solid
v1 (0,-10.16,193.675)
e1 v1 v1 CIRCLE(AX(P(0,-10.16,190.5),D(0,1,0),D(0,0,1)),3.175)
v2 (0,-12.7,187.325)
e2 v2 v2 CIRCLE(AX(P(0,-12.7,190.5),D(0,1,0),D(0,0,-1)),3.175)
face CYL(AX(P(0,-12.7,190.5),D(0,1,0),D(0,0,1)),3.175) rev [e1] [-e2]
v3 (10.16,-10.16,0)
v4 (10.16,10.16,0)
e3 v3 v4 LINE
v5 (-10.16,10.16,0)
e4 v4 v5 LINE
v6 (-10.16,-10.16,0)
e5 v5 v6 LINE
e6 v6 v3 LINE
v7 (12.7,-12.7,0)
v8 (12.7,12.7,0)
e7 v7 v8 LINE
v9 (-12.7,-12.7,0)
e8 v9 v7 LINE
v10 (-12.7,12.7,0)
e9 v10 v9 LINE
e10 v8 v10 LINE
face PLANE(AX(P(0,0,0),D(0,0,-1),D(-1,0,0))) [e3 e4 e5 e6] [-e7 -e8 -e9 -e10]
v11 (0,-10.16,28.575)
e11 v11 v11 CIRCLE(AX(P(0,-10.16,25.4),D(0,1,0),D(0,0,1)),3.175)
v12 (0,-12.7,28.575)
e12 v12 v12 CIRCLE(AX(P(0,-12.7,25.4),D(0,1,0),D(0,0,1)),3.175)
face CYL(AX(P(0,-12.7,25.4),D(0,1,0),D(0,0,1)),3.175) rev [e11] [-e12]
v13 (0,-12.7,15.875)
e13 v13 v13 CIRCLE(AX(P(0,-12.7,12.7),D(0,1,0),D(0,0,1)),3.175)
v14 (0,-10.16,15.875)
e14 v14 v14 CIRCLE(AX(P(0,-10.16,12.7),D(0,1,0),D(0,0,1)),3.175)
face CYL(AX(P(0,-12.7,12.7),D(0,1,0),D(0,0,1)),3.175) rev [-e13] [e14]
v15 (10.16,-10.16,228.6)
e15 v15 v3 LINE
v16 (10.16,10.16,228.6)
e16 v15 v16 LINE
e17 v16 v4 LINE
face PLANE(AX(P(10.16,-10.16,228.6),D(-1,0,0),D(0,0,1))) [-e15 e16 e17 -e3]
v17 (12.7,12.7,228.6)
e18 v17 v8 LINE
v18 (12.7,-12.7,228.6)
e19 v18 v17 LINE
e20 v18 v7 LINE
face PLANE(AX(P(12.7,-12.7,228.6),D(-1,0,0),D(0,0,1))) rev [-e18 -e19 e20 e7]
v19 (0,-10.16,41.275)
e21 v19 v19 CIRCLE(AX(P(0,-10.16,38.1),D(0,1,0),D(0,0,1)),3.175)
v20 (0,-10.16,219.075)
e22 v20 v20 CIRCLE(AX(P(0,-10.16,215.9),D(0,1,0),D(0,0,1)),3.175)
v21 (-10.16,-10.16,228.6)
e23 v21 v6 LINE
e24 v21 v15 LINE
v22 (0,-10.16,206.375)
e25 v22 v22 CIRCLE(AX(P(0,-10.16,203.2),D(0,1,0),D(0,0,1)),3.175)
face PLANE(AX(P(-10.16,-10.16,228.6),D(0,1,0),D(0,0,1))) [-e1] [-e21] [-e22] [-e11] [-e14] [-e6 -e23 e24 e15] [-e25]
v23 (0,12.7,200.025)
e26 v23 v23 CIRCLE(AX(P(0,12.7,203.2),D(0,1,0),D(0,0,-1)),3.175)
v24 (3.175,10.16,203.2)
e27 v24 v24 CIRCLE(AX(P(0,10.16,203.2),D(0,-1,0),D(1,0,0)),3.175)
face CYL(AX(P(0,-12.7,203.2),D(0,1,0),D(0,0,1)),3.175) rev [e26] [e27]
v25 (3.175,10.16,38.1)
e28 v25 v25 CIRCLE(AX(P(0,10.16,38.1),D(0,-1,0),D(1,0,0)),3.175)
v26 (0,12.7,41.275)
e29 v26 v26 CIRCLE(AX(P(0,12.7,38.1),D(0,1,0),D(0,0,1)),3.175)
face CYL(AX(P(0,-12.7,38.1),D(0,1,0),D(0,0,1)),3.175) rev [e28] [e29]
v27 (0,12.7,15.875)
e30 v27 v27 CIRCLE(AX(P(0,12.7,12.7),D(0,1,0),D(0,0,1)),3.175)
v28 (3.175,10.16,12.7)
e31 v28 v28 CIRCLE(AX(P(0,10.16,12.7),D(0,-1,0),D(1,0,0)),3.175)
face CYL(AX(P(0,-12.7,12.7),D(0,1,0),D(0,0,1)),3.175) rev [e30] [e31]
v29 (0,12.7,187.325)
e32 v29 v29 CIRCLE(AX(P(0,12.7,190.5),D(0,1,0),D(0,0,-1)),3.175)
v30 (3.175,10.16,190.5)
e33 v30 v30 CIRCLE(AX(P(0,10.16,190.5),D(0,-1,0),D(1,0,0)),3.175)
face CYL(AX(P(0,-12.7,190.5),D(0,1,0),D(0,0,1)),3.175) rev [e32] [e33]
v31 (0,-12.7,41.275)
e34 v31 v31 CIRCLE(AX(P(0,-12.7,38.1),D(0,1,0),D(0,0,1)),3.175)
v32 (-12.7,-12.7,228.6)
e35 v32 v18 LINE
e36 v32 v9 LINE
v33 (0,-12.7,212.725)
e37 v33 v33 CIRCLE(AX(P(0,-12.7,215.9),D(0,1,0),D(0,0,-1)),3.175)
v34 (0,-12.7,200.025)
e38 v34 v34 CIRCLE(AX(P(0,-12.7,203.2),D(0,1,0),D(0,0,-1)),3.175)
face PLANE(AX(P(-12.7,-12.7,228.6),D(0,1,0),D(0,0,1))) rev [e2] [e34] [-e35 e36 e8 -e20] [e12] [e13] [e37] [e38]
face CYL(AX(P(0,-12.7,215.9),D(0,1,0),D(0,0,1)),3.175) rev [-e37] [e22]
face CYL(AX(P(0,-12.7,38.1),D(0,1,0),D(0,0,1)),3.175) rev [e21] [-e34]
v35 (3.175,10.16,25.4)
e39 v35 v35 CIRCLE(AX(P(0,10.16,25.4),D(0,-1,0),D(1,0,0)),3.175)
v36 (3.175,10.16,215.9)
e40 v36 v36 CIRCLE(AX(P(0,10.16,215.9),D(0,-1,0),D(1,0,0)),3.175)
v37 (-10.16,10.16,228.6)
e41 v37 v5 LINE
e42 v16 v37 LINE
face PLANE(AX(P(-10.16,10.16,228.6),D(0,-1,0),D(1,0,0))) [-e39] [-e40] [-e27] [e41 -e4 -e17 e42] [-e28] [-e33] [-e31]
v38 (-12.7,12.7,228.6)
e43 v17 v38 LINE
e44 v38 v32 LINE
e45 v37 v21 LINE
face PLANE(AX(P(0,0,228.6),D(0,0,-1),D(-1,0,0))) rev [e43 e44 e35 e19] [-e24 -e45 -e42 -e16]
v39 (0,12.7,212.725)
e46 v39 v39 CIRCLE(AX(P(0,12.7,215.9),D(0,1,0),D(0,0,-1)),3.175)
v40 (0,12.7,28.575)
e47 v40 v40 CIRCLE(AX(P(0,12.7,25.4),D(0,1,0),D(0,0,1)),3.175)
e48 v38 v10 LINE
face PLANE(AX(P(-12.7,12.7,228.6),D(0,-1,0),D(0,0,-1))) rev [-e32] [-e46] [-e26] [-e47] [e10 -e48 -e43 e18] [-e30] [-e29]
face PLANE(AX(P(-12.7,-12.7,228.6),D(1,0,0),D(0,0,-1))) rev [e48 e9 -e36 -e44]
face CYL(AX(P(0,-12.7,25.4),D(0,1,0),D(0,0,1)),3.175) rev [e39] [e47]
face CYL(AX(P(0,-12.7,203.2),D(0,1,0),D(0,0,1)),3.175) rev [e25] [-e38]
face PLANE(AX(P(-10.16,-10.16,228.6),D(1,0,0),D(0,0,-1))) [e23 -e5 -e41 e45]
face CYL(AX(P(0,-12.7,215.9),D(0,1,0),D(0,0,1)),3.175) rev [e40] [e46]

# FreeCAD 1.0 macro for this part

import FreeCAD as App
import Part
import Sketcher

V = App.Vector
Q = App.Units.Quantity


def add_polygon(sketch, points):
    """Adds a closed chain of lines whose ends are joined by coincident constraints."""
    first, n = sketch.GeometryCount, len(points)
    for a, b in zip(points, points[1:] + points[:1]):
        sketch.addGeometry(Part.LineSegment(App.Vector(*a, 0), App.Vector(*b, 0)), False)
    for i in range(n):
        sketch.addConstraint(Sketcher.Constraint("Coincident", first + i, 2, first + (i + 1) % n, 1))

doc = App.newDocument("Part")
params = doc.addObject("Spreadsheet::Sheet", "Params")
for row, (alias, value) in enumerate([
    ("sketch1_width", "1 in"),
    ("sketch1_width2", "0.8 in"),
    ("pad1_length", "9 in"),
    ("sketch2_diameter", "0.25 in"),
], start=1):
    params.set(f"A{row}", alias)
    params.set(f"B{row}", "=" + value)
    params.setAlias(f"B{row}", alias)

body = doc.addObject("PartDesign::Body", "Body")

# Sketch on XY plane
sketch1 = body.newObject("Sketcher::SketchObject", "Sketch")
sketch1.AttachmentSupport = (doc.getObject("XY_Plane"), [""])
sketch1.MapMode = "FlatFace"
add_polygon(sketch1, [(-13, 13), (-13, -13), (13, -13), (13, 13)])  # lines 0-3
add_polygon(sketch1, [(10, -10), (-10, -10), (-10, 10), (10, 10)])  # lines 4-7
sketch1.addConstraint([
    Sketcher.Constraint("Vertical", 0),
    Sketcher.Constraint("Horizontal", 1),
    Sketcher.Constraint("Vertical", 2),
    Sketcher.Constraint("Horizontal", 3),
    Sketcher.Constraint("Horizontal", 4),
    Sketcher.Constraint("Vertical", 5),
    Sketcher.Constraint("Horizontal", 6),
    Sketcher.Constraint("Vertical", 7),
    Sketcher.Constraint("Symmetric", 0, 2, 2, 2, -1, 1),
    Sketcher.Constraint("Symmetric", 4, 2, 6, 2, -1, 1),
    Sketcher.Constraint("Equal", 3, 0),
    Sketcher.Constraint("Equal", 6, 5),
    Sketcher.Constraint("DistanceX", 1, 1, 1, 2, Q("1 in")),
    Sketcher.Constraint("DistanceX", 4, 2, 4, 1, Q("0.8 in")),
])
sketch1.setExpression("Constraints[20]", "Params.sketch1_width")
sketch1.setExpression("Constraints[21]", "Params.sketch1_width2")
pad1 = body.newObject("PartDesign::Pad", "Pad")
pad1.Profile = sketch1
pad1.setExpression("Length", "Params.pad1_length")

# Sketch on XZ plane
sketch2 = body.newObject("Sketcher::SketchObject", "Sketch001")
sketch2.AttachmentSupport = (doc.getObject("XZ_Plane"), [""])
sketch2.MapMode = "FlatFace"
sketch2.AttachmentOffset = App.Placement(V(0, 0, -0.5 * 25.4), App.Rotation())
sketch2.addGeometry([
    Part.Circle(V(0, 12.7, 0), V(0, 0, 1), 3.2),  # 0
    Part.Circle(V(0, 25.4, 0), V(0, 0, 1), 3.2),  # 1
    Part.Circle(V(0, 38.1, 0), V(0, 0, 1), 3.2),  # 2
    Part.Circle(V(0, 190.5, 0), V(0, 0, 1), 3.2),  # 3
    Part.Circle(V(0, 203.2, 0), V(0, 0, 1), 3.2),  # 4
    Part.Circle(V(0, 215.9, 0), V(0, 0, 1), 3.2),  # 5
], False)
sketch2.addConstraint([
    Sketcher.Constraint("Equal", 0, 1),
    Sketcher.Constraint("Equal", 1, 2),
    Sketcher.Constraint("Equal", 2, 3),
    Sketcher.Constraint("Equal", 3, 4),
    Sketcher.Constraint("Equal", 4, 5),
    Sketcher.Constraint("PointOnObject", 0, 3, -2),
    Sketcher.Constraint("PointOnObject", 1, 3, -2),
    Sketcher.Constraint("PointOnObject", 2, 3, -2),
    Sketcher.Constraint("PointOnObject", 3, 3, -2),
    Sketcher.Constraint("PointOnObject", 4, 3, -2),
    Sketcher.Constraint("PointOnObject", 5, 3, -2),
    Sketcher.Constraint("Diameter", 0, Q("0.25 in")),
    Sketcher.Constraint("DistanceY", -1, 1, 1, 3, Q("1 in")),
    Sketcher.Constraint("DistanceY", -1, 1, 4, 3, Q("8 in")),
    Sketcher.Constraint("DistanceY", 0, 3, 2, 3, Q("1 in")),
    Sketcher.Constraint("DistanceY", 2, 3, 3, 3, Q("6 in")),
    Sketcher.Constraint("DistanceY", 3, 3, 5, 3, Q("1 in")),
    Sketcher.Constraint("DistanceY", -1, 1, 0, 3, Q("0.5 in")),
])
sketch2.setExpression("Constraints[11]", "Params.sketch2_diameter")
pocket1 = body.newObject("PartDesign::Pocket", "Pocket")
pocket1.Profile = sketch2
pocket1.Type = "ThroughAll"
pocket1.Reversed = True

doc.recompute()
